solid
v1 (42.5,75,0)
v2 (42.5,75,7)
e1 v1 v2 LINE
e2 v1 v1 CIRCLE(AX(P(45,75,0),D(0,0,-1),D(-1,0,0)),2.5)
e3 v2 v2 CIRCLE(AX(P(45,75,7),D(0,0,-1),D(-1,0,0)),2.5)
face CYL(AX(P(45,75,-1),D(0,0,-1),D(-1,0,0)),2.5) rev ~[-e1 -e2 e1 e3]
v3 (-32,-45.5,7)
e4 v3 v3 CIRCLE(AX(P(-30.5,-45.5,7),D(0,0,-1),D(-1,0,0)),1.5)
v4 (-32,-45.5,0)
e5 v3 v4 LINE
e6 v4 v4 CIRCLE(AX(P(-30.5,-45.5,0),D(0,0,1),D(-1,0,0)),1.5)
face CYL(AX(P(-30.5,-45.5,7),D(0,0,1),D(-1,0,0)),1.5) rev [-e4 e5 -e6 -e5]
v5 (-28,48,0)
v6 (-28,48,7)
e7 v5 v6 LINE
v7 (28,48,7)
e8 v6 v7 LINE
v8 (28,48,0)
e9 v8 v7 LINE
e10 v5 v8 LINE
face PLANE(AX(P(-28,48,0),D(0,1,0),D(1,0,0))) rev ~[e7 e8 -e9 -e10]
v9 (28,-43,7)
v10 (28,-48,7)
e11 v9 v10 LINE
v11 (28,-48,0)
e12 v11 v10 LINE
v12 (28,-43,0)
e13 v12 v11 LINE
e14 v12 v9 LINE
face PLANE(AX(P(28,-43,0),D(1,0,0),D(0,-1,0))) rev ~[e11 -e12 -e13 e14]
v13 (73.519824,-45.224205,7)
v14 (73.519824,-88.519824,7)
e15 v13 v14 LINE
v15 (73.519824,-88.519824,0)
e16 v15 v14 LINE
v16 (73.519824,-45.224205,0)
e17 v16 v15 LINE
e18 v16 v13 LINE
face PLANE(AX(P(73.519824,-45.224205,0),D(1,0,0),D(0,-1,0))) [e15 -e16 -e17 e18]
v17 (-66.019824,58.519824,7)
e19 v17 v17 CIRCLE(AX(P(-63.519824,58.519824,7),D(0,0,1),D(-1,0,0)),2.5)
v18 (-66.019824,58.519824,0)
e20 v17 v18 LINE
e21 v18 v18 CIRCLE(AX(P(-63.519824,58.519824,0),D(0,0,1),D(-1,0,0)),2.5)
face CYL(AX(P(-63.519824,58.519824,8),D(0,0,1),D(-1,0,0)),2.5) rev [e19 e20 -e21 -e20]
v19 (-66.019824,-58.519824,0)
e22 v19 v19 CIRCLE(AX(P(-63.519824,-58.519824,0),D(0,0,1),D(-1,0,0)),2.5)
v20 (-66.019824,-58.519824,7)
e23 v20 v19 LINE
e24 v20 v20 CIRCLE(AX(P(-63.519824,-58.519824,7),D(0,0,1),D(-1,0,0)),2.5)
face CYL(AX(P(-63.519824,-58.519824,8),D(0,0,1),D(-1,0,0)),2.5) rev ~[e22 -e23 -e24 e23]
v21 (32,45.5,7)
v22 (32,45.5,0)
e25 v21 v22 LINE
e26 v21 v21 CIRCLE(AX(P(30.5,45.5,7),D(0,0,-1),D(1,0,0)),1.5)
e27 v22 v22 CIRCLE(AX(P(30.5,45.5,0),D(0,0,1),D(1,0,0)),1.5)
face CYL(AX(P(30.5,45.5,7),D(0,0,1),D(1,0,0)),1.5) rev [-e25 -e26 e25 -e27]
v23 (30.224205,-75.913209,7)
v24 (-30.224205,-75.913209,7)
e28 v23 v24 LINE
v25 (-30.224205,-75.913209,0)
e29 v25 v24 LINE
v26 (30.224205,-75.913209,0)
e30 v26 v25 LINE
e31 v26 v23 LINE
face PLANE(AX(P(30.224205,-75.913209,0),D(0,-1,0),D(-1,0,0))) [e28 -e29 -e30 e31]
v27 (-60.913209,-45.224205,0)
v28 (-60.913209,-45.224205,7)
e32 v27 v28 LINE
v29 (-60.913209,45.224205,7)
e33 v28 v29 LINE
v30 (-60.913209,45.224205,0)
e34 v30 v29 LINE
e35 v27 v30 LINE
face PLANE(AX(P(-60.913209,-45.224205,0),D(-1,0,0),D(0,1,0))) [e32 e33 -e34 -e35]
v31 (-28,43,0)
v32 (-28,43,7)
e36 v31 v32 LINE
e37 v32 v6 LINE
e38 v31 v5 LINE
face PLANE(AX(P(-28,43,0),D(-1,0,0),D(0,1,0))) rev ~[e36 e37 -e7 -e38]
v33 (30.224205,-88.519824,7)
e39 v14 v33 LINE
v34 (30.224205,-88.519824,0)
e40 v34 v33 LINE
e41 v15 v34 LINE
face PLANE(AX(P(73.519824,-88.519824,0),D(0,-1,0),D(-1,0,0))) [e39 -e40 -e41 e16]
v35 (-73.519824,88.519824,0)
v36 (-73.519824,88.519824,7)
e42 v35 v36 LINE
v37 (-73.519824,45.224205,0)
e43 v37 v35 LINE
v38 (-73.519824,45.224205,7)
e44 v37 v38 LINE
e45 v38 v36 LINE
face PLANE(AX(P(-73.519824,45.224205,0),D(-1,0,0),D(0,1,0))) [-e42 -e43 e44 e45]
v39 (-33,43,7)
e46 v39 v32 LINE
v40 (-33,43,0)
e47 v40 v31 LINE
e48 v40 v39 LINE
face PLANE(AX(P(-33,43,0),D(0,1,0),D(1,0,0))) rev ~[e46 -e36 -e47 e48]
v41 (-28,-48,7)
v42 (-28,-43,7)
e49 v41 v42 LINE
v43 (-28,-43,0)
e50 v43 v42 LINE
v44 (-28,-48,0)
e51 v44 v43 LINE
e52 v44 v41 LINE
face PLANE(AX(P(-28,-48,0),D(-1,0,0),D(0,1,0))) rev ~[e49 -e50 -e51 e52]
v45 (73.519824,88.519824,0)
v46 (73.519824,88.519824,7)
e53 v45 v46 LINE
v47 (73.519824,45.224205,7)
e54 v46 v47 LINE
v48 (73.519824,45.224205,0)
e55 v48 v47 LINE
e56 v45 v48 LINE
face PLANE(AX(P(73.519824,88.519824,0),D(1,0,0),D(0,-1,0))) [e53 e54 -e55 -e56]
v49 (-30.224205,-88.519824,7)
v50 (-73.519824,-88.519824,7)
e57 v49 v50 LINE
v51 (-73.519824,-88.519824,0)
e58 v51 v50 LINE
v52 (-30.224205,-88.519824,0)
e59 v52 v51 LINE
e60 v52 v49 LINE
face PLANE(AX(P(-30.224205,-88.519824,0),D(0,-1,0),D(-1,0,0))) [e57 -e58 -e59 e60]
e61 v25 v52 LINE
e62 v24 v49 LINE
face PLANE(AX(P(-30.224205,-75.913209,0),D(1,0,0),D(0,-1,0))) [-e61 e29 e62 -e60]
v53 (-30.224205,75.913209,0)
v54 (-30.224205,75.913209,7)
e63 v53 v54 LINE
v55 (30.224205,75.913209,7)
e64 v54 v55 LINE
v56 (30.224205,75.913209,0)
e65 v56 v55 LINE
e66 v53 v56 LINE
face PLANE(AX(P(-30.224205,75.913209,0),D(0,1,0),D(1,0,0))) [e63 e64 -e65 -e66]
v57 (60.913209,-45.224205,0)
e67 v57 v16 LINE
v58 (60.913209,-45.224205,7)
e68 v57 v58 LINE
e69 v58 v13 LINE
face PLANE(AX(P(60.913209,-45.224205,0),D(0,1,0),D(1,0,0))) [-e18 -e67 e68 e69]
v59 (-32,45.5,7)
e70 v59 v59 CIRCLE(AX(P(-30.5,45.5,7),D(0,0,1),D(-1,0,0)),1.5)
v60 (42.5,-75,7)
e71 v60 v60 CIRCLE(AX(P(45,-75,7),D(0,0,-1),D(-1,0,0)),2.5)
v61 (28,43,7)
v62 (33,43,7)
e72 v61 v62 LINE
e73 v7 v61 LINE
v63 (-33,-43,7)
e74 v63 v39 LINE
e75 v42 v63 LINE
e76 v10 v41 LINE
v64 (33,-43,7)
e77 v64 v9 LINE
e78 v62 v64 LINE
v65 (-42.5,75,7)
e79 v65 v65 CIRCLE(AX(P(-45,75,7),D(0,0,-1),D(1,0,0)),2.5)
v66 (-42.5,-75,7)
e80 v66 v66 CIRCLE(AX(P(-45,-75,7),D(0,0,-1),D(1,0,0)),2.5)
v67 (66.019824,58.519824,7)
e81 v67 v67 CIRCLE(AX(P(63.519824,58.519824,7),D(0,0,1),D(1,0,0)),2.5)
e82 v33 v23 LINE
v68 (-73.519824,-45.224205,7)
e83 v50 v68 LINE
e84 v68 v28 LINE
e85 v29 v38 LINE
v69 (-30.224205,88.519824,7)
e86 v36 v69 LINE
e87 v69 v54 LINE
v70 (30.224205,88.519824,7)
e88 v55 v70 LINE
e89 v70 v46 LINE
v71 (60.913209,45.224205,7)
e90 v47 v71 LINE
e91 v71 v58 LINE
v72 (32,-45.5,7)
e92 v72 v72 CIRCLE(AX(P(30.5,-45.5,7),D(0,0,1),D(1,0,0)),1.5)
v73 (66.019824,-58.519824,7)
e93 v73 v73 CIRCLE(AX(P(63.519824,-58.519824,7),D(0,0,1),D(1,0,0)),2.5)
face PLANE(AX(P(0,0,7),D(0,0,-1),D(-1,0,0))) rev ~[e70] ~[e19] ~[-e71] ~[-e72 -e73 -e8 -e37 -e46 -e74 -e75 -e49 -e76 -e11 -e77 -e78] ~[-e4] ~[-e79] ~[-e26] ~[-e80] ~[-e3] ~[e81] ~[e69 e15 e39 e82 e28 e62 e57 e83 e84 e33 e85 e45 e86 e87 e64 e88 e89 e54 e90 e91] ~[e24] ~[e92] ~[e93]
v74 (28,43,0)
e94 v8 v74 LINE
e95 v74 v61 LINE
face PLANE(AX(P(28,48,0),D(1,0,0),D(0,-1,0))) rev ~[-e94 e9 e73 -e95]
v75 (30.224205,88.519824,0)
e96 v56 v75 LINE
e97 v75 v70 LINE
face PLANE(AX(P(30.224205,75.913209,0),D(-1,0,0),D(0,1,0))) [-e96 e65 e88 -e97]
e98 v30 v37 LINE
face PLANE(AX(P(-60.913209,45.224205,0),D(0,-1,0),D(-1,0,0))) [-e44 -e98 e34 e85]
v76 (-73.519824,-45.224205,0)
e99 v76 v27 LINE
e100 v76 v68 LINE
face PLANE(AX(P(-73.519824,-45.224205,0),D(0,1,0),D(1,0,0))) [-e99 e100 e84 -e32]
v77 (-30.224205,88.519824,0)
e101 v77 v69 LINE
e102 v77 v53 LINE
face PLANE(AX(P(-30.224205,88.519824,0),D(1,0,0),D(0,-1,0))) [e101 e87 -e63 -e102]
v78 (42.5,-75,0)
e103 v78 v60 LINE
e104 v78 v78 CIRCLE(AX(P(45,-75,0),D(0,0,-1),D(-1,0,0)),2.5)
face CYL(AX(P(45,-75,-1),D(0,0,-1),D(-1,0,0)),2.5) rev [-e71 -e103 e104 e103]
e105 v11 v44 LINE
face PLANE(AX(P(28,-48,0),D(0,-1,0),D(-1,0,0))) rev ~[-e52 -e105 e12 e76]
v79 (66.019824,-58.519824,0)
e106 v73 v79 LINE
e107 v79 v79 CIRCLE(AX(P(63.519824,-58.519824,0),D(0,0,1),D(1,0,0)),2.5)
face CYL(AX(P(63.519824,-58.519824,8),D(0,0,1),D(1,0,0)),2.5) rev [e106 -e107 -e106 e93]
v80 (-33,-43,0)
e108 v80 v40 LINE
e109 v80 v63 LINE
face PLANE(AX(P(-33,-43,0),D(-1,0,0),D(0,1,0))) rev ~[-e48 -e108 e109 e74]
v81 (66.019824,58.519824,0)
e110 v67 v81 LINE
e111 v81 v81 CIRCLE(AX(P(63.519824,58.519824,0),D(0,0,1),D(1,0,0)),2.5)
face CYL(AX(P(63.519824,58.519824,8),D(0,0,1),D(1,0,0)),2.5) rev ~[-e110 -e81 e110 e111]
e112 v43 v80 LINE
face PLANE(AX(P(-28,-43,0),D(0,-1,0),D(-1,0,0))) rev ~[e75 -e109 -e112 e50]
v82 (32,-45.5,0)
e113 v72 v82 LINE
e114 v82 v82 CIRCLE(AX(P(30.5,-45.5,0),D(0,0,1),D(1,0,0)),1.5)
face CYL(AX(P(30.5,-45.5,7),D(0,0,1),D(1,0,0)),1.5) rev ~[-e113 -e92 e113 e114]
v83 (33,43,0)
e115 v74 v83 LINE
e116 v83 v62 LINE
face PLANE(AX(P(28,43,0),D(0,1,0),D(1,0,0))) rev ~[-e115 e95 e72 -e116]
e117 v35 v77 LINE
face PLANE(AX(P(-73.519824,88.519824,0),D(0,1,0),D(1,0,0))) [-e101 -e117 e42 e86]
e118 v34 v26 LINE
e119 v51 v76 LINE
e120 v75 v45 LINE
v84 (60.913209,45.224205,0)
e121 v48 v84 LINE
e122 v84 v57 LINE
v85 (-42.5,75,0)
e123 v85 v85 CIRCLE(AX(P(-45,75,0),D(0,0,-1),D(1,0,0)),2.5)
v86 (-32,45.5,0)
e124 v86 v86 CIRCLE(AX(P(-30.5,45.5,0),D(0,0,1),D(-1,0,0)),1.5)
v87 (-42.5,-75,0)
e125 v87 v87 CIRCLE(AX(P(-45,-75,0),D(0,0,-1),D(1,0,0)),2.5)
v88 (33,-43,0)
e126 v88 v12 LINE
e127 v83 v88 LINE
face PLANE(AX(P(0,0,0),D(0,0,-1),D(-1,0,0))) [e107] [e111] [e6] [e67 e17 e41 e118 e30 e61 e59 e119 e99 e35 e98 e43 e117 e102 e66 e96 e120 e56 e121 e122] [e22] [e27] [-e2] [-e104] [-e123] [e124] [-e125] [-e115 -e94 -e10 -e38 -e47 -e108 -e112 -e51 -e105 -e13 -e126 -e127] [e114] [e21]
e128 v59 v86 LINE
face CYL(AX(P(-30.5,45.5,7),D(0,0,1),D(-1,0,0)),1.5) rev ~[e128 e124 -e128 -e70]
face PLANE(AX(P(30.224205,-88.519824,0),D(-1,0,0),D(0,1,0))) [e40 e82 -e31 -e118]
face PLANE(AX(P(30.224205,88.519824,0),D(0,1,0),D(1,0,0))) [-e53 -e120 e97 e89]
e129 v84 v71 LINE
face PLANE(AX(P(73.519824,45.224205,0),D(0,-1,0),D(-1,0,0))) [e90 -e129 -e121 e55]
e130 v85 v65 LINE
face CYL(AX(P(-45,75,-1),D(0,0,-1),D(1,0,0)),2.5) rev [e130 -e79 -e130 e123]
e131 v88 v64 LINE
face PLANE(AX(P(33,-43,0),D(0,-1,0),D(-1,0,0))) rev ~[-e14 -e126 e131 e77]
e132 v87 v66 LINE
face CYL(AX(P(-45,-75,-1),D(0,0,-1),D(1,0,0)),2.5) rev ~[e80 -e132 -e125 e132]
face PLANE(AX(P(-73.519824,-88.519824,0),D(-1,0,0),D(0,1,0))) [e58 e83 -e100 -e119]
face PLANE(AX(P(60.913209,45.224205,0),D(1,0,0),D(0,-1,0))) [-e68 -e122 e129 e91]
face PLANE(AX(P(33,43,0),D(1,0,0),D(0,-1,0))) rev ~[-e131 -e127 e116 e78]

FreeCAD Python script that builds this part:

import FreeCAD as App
import Part
import Sketcher
Q = App.Units.Quantity


def add_polygon(sketch, points):
    """Adds a closed chain of lines whose ends are joined by coincident constraints."""
    first, n = sketch.GeometryCount, len(points)
    for a, b in zip(points, points[1:] + points[:1]):
        sketch.addGeometry(Part.LineSegment(App.Vector(*a, 0), App.Vector(*b, 0)), False)
    for i in range(n):
        sketch.addConstraint(Sketcher.Constraint("Coincident", first + i, 2, first + (i + 1) % n, 1))

doc = App.newDocument("Part")
params = doc.addObject("Spreadsheet::Sheet", "Params")
for row, (alias, value) in enumerate([
    ("sketch1_width", "56 mm"),
    ("sketch1_width2", "5 mm"),
    ("sketch1_height", "86 mm"),
    ("pad1_length", "7 mm"),
    ("sketch2_diameter", "3 mm"),
    ("pocket1_length", "10 mm"),
    ("sketch3_diameter", "3 mm"),
    ("pocket2_length", "10 mm"),
    ("sketch4_diameter", "5 mm"),
    ("pocket3_length", "9 mm"),
    ("sketch5_diameter", "5 mm"),
    ("pocket4_length", "9 mm"),
    ("sketch6_diameter", "5 mm"),
    ("pocket5_length", "9 mm"),
    ("sketch7_diameter", "5 mm"),
    ("pocket6_length", "9 mm"),
], start=1):
    params.set(f"A{row}", alias)
    params.set(f"B{row}", "=" + value)
    params.setAlias(f"B{row}", alias)

body = doc.addObject("PartDesign::Body", "Body")

# Sketch on XY plane
sketch1 = body.newObject("Sketcher::SketchObject", "Sketch")
sketch1.AttachmentSupport = (doc.getObject("XY_Plane"), [""])
sketch1.MapMode = "FlatFace"
add_polygon(sketch1, [(30, 76), (-30, 76), (-30, 89), (-74, 89), (-74, 45), (-61, 45), (-61, -45), (-74, -45), (-74, -89), (-30, -89), (-30, -76), (30, -76), (30, -89), (74, -89), (74, -45), (61, -45), (61, 45), (74, 45), (74, 89), (30, 89)])  # lines 0-19
add_polygon(sketch1, [(-28, 48), (28, 48), (28, 43), (33, 43), (33, -43), (28, -43), (28, -48), (-28, -48), (-28, -43), (-33, -43), (-33, 43), (-28, 43)])  # lines 20-31
sketch1.addConstraint(Sketcher.Constraint("Horizontal", 0))
sketch1.addConstraint(Sketcher.Constraint("Vertical", 1))
sketch1.addConstraint(Sketcher.Constraint("Horizontal", 2))
sketch1.addConstraint(Sketcher.Constraint("Vertical", 3))
sketch1.addConstraint(Sketcher.Constraint("Horizontal", 4))
sketch1.addConstraint(Sketcher.Constraint("Vertical", 5))
sketch1.addConstraint(Sketcher.Constraint("Horizontal", 6))
sketch1.addConstraint(Sketcher.Constraint("Vertical", 7))
sketch1.addConstraint(Sketcher.Constraint("Horizontal", 8))
sketch1.addConstraint(Sketcher.Constraint("Vertical", 9))
sketch1.addConstraint(Sketcher.Constraint("Horizontal", 10))
sketch1.addConstraint(Sketcher.Constraint("Vertical", 11))
sketch1.addConstraint(Sketcher.Constraint("Horizontal", 12))
sketch1.addConstraint(Sketcher.Constraint("Vertical", 13))
sketch1.addConstraint(Sketcher.Constraint("Horizontal", 14))
sketch1.addConstraint(Sketcher.Constraint("Vertical", 15))
sketch1.addConstraint(Sketcher.Constraint("Horizontal", 16))
sketch1.addConstraint(Sketcher.Constraint("Vertical", 17))
sketch1.addConstraint(Sketcher.Constraint("Horizontal", 18))
sketch1.addConstraint(Sketcher.Constraint("Vertical", 19))
sketch1.addConstraint(Sketcher.Constraint("Horizontal", 20))
sketch1.addConstraint(Sketcher.Constraint("Vertical", 21))
sketch1.addConstraint(Sketcher.Constraint("Horizontal", 22))
sketch1.addConstraint(Sketcher.Constraint("Vertical", 23))
sketch1.addConstraint(Sketcher.Constraint("Horizontal", 24))
sketch1.addConstraint(Sketcher.Constraint("Vertical", 25))
sketch1.addConstraint(Sketcher.Constraint("Horizontal", 26))
sketch1.addConstraint(Sketcher.Constraint("Vertical", 27))
sketch1.addConstraint(Sketcher.Constraint("Horizontal", 28))
sketch1.addConstraint(Sketcher.Constraint("Vertical", 29))
sketch1.addConstraint(Sketcher.Constraint("Horizontal", 30))
sketch1.addConstraint(Sketcher.Constraint("Vertical", 31))
sketch1.addConstraint(Sketcher.Constraint("Symmetric", 0, 2, 10, 2, -1, 1))
sketch1.addConstraint(Sketcher.Constraint("Symmetric", 2, 2, 12, 2, -1, 1))
sketch1.addConstraint(Sketcher.Constraint("Symmetric", 4, 2, 14, 2, -1, 1))
sketch1.addConstraint(Sketcher.Constraint("Symmetric", 6, 2, 16, 2, -1, 1))
sketch1.addConstraint(Sketcher.Constraint("Symmetric", 8, 2, 18, 2, -1, 1))
sketch1.addConstraint(Sketcher.Constraint("Symmetric", 20, 2, 26, 2, -1, 1))
sketch1.addConstraint(Sketcher.Constraint("Symmetric", 22, 2, 28, 2, -1, 1))
sketch1.addConstraint(Sketcher.Constraint("Symmetric", 24, 2, 30, 2, -1, 1))
sketch1.addConstraint(Sketcher.Constraint("Symmetric", 8, 2, 11, 2, -2))
sketch1.addConstraint(Sketcher.Constraint("Symmetric", 6, 2, 13, 2, -2))
sketch1.addConstraint(Sketcher.Constraint("Symmetric", 24, 2, 27, 2, -2))
sketch1.addConstraint(Sketcher.Constraint("Equal", 16, 1))
sketch1.addConstraint(Sketcher.Constraint("Equal", 18, 3))
sketch1.addConstraint(Sketcher.Constraint("Equal", 30, 21))
sketch1.addConstraint(Sketcher.Constraint("DistanceX", 20, 1, 20, 2, Q("56 mm")))
sketch1.addConstraint(Sketcher.Constraint("DistanceX", 22, 1, 22, 2, Q("5 mm")))
sketch1.addConstraint(Sketcher.Constraint("DistanceY", 23, 2, 23, 1, Q("86 mm")))
sketch1.addConstraint(Sketcher.Constraint("DistanceX", 0, 2, 0, 1, Q("60.44841 mm")))
sketch1.addConstraint(Sketcher.Constraint("DistanceX", 2, 2, 2, 1, Q("43.295619 mm")))
sketch1.addConstraint(Sketcher.Constraint("DistanceY", 5, 2, 5, 1, Q("90.44841 mm")))
sketch1.addConstraint(Sketcher.Constraint("DistanceX", 4, 1, 4, 2, Q("12.606615 mm")))
sketch1.setExpression("Constraints[78]", "Params.sketch1_width")
sketch1.setExpression("Constraints[79]", "Params.sketch1_width2")
sketch1.setExpression("Constraints[80]", "Params.sketch1_height")
pad1 = body.newObject("PartDesign::Pad", "Pad")
pad1.Profile = sketch1
pad1.setExpression("Length", "Params.pad1_length")

# Sketch on XY plane
sketch2 = body.newObject("Sketcher::SketchObject", "Sketch001")
sketch2.AttachmentSupport = (doc.getObject("XY_Plane"), [""])
sketch2.MapMode = "FlatFace"
sketch2.AttachmentOffset = App.Placement(App.Vector(0, 0, 7), App.Rotation())
sketch2.addGeometry(Part.Circle(App.Vector(30.5, -45.5, 0), App.Vector(0, 0, 1), 1.5), False)
sketch2.addConstraint(Sketcher.Constraint("Diameter", 0, Q("3 mm")))
sketch2.addConstraint(Sketcher.Constraint("DistanceX", -1, 1, 0, 3, Q("30.5 mm")))
sketch2.addConstraint(Sketcher.Constraint("DistanceY", 0, 3, -1, 1, Q("45.5 mm")))
sketch2.setExpression("Constraints[0]", "Params.sketch2_diameter")
pocket1 = body.newObject("PartDesign::Pocket", "Pocket")
pocket1.Profile = sketch2
pocket1.setExpression("Length", "Params.pocket1_length")
doc.recompute()

mirrored = body.newObject("PartDesign::Mirrored", "Mirrored")
mirrored.Originals = [pocket1]
mirrored.MirrorPlane = (doc.getObject("YZ_Plane"), [""])
body.Tip = mirrored
doc.recompute()

mirrored2 = body.newObject("PartDesign::Mirrored", "Mirrored001")
mirrored2.Originals = [pocket1]
mirrored2.MirrorPlane = (doc.getObject("XZ_Plane"), [""])
body.Tip = mirrored2

# Sketch on XY plane
sketch3 = body.newObject("Sketcher::SketchObject", "Sketch002")
sketch3.AttachmentSupport = (doc.getObject("XY_Plane"), [""])
sketch3.MapMode = "FlatFace"
sketch3.AttachmentOffset = App.Placement(App.Vector(0, 0, 7), App.Rotation())
sketch3.addGeometry(Part.Circle(App.Vector(-30.5, 45.5, 0), App.Vector(0, 0, 1), 1.5), False)
sketch3.addConstraint(Sketcher.Constraint("Diameter", 0, Q("3 mm")))
sketch3.addConstraint(Sketcher.Constraint("DistanceX", 0, 3, -1, 1, Q("30.5 mm")))
sketch3.addConstraint(Sketcher.Constraint("DistanceY", -1, 1, 0, 3, Q("45.5 mm")))
sketch3.setExpression("Constraints[0]", "Params.sketch3_diameter")
pocket2 = body.newObject("PartDesign::Pocket", "Pocket001")
pocket2.Profile = sketch3
pocket2.setExpression("Length", "Params.pocket2_length")

# Sketch on XY plane
sketch4 = body.newObject("Sketcher::SketchObject", "Sketch003")
sketch4.AttachmentSupport = (doc.getObject("XY_Plane"), [""])
sketch4.MapMode = "FlatFace"
sketch4.AttachmentOffset = App.Placement(App.Vector(0, 0, -1), App.Rotation())
sketch4.addGeometry(Part.Circle(App.Vector(-45, 75, 0), App.Vector(0, 0, 1), 2.5), False)
sketch4.addConstraint(Sketcher.Constraint("Diameter", 0, Q("5 mm")))
sketch4.addConstraint(Sketcher.Constraint("DistanceX", 0, 3, -1, 1, Q("45 mm")))
sketch4.addConstraint(Sketcher.Constraint("DistanceY", -1, 1, 0, 3, Q("75 mm")))
sketch4.setExpression("Constraints[0]", "Params.sketch4_diameter")
pocket3 = body.newObject("PartDesign::Pocket", "Pocket002")
pocket3.Profile = sketch4
pocket3.setExpression("Length", "Params.pocket3_length")
pocket3.Reversed = True
doc.recompute()

mirrored3 = body.newObject("PartDesign::Mirrored", "Mirrored002")
mirrored3.Originals = [pocket3]
mirrored3.MirrorPlane = (doc.getObject("XZ_Plane"), [""])
body.Tip = mirrored3
doc.recompute()

mirrored4 = body.newObject("PartDesign::Mirrored", "Mirrored003")
mirrored4.Originals = [pocket3]
mirrored4.MirrorPlane = (doc.getObject("YZ_Plane"), [""])
body.Tip = mirrored4

# Sketch on XY plane
sketch5 = body.newObject("Sketcher::SketchObject", "Sketch004")
sketch5.AttachmentSupport = (doc.getObject("XY_Plane"), [""])
sketch5.MapMode = "FlatFace"
sketch5.AttachmentOffset = App.Placement(App.Vector(0, 0, -1), App.Rotation())
sketch5.addGeometry(Part.Circle(App.Vector(45, -75, 0), App.Vector(0, 0, 1), 2.5), False)
sketch5.addConstraint(Sketcher.Constraint("Diameter", 0, Q("5 mm")))
sketch5.addConstraint(Sketcher.Constraint("DistanceX", -1, 1, 0, 3, Q("45 mm")))
sketch5.addConstraint(Sketcher.Constraint("DistanceY", 0, 3, -1, 1, Q("75 mm")))
sketch5.setExpression("Constraints[0]", "Params.sketch5_diameter")
pocket4 = body.newObject("PartDesign::Pocket", "Pocket003")
pocket4.Profile = sketch5
pocket4.setExpression("Length", "Params.pocket4_length")
pocket4.Reversed = True

# Sketch on XY plane
sketch6 = body.newObject("Sketcher::SketchObject", "Sketch005")
sketch6.AttachmentSupport = (doc.getObject("XY_Plane"), [""])
sketch6.MapMode = "FlatFace"
sketch6.AttachmentOffset = App.Placement(App.Vector(0, 0, 8), App.Rotation())
sketch6.addGeometry(Part.Circle(App.Vector(-63.5, 58.5, 0), App.Vector(0, 0, 1), 2.5), False)
sketch6.addConstraint(Sketcher.Constraint("Diameter", 0, Q("5 mm")))
sketch6.addConstraint(Sketcher.Constraint("DistanceX", 0, 3, -1, 1, Q("63.519824 mm")))
sketch6.addConstraint(Sketcher.Constraint("DistanceY", -1, 1, 0, 3, Q("58.519824 mm")))
sketch6.setExpression("Constraints[0]", "Params.sketch6_diameter")
pocket5 = body.newObject("PartDesign::Pocket", "Pocket004")
pocket5.Profile = sketch6
pocket5.setExpression("Length", "Params.pocket5_length")
doc.recompute()

mirrored5 = body.newObject("PartDesign::Mirrored", "Mirrored004")
mirrored5.Originals = [pocket5]
mirrored5.MirrorPlane = (doc.getObject("YZ_Plane"), [""])
body.Tip = mirrored5
doc.recompute()

mirrored6 = body.newObject("PartDesign::Mirrored", "Mirrored005")
mirrored6.Originals = [pocket5]
mirrored6.MirrorPlane = (doc.getObject("XZ_Plane"), [""])
body.Tip = mirrored6

# Sketch on XY plane
sketch7 = body.newObject("Sketcher::SketchObject", "Sketch006")
sketch7.AttachmentSupport = (doc.getObject("XY_Plane"), [""])
sketch7.MapMode = "FlatFace"
sketch7.AttachmentOffset = App.Placement(App.Vector(0, 0, 8), App.Rotation())
sketch7.addGeometry(Part.Circle(App.Vector(63.5, -58.5, 0), App.Vector(0, 0, 1), 2.5), False)
sketch7.addConstraint(Sketcher.Constraint("Diameter", 0, Q("5 mm")))
sketch7.addConstraint(Sketcher.Constraint("DistanceX", -1, 1, 0, 3, Q("63.519824 mm")))
sketch7.addConstraint(Sketcher.Constraint("DistanceY", 0, 3, -1, 1, Q("58.519824 mm")))
sketch7.setExpression("Constraints[0]", "Params.sketch7_diameter")
pocket6 = body.newObject("PartDesign::Pocket", "Pocket005")
pocket6.Profile = sketch7
pocket6.setExpression("Length", "Params.pocket6_length")

doc.recompute()
